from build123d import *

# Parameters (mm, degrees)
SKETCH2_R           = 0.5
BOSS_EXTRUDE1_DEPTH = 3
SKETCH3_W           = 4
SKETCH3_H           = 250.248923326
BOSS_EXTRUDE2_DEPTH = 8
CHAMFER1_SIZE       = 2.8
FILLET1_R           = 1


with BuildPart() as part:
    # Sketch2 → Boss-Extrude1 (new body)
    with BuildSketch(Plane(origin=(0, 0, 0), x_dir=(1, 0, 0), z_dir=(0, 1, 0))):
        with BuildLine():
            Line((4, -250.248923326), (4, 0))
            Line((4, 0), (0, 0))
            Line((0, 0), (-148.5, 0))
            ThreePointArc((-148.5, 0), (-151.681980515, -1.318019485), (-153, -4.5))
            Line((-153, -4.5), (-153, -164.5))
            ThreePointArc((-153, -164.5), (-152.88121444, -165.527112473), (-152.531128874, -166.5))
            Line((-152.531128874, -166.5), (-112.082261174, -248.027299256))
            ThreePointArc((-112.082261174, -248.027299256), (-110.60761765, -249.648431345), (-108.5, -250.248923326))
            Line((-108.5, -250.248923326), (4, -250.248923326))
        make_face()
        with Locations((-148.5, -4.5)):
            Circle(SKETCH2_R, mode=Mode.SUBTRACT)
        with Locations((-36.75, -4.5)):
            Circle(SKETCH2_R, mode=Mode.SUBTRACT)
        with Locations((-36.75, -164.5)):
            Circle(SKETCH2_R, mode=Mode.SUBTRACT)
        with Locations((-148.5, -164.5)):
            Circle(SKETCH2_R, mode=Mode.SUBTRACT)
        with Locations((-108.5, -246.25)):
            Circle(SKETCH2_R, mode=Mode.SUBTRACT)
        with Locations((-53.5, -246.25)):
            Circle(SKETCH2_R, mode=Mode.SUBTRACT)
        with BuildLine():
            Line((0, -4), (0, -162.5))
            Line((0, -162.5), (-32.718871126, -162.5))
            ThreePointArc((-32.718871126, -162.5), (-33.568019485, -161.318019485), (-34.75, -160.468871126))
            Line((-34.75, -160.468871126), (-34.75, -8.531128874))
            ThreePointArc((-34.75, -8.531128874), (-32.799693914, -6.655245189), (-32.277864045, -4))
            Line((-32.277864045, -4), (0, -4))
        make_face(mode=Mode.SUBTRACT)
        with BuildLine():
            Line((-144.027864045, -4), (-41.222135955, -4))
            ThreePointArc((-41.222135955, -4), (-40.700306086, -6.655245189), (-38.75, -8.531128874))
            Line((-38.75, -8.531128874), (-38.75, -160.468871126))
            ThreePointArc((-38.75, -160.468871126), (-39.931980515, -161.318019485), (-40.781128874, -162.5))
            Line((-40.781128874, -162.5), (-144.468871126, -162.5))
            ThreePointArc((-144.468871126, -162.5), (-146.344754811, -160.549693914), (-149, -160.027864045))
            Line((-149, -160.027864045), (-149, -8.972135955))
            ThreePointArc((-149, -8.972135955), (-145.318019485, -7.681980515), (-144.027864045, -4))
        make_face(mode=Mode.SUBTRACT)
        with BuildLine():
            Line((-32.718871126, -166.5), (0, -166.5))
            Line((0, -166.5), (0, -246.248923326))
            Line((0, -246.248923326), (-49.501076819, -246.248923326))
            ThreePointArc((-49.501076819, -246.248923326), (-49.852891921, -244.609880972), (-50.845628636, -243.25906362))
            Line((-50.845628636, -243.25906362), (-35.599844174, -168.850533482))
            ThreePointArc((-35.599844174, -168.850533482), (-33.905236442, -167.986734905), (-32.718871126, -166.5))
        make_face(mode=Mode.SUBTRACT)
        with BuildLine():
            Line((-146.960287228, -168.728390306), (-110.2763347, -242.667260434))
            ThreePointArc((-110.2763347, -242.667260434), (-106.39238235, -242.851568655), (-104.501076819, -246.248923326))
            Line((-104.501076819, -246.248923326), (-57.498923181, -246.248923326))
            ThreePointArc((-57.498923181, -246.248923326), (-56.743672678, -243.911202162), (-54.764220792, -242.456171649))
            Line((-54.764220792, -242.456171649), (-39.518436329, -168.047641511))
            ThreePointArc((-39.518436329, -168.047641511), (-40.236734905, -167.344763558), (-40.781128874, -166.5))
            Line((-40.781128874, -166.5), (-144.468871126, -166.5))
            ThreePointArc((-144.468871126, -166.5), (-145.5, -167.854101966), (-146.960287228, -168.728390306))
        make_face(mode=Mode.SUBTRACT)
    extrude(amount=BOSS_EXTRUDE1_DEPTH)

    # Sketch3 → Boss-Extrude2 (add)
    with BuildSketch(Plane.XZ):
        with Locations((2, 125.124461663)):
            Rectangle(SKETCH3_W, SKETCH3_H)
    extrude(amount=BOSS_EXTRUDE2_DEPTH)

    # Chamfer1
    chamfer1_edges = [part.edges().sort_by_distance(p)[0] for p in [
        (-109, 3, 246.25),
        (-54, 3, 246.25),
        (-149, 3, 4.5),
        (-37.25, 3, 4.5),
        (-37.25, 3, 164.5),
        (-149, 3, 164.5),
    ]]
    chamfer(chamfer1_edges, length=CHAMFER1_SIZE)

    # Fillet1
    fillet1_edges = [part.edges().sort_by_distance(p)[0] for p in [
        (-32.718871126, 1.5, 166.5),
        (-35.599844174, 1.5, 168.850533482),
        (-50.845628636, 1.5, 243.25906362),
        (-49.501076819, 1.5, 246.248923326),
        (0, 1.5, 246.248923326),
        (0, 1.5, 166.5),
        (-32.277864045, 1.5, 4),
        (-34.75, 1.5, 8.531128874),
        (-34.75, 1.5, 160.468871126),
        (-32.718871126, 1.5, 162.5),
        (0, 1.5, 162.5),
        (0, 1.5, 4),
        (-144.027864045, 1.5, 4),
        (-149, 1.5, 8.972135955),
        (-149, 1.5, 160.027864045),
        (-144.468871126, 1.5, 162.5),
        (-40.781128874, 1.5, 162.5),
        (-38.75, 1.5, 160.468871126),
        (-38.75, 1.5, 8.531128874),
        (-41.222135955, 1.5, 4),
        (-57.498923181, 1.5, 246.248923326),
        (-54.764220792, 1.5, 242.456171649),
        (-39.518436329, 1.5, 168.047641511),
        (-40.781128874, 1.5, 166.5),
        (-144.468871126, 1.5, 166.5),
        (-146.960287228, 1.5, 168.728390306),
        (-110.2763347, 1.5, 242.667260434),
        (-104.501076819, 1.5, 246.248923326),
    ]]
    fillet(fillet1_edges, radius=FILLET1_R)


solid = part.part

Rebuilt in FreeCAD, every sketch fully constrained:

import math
import FreeCAD as App
import Part
import Sketcher

V = App.Vector


def edges_at(feature, points):
    """Names of the edges that pass closest to the given points."""
    edges = feature.Shape.Edges
    near = lambda p: min(range(len(edges)), key=lambda i: edges[i].distToShape(Part.Vertex(*p))[0])
    return sorted({f"Edge{near(p) + 1}" for p in points})


def add_polygon(sketch, points):
    """Adds a closed chain of lines whose ends are joined by coincident constraints."""
    first, n = sketch.GeometryCount, len(points)
    for a, b in zip(points, points[1:] + points[:1]):
        sketch.addGeometry(Part.LineSegment(App.Vector(*a, 0), App.Vector(*b, 0)), False)
    for i in range(n):
        sketch.addConstraint(Sketcher.Constraint("Coincident", first + i, 2, first + (i + 1) % n, 1))

doc = App.newDocument("Part")
body = doc.addObject("PartDesign::Body", "Body")

sketch1 = doc.addObject("Sketcher::SketchObject", "Sketch")
body.addObject(sketch1)
sketch1.AttachmentSupport = (doc.XZ_Plane, [""])
sketch1.MapMode = "FlatFace"
sketch1.addGeometry([
    Part.LineSegment(V(4, 250.248923, 0), V(4, 0, 0)),
    Part.LineSegment(V(4, 0, 0), V(-148.5, 0, 0)),
    Part.ArcOfCircle(Part.Circle(V(-148.5, 4.5, 0), V(0, 0, 1), 4.5), math.radians(-180), math.radians(-90)),
    Part.LineSegment(V(-153, 4.5, 0), V(-153, 164.5, 0)),
    Part.ArcOfCircle(Part.Circle(V(-148.5, 164.5, 0), V(0, 0, 1), 4.5), math.radians(153.6122), math.radians(180)),
    Part.LineSegment(V(-152.531129, 166.5, 0), V(-112.082261, 248.027299, 0)),
    Part.ArcOfCircle(Part.Circle(V(-108.5, 246.25, 0), V(0, 0, 1), 3.998923), math.radians(90), math.radians(153.6122)),
    Part.LineSegment(V(-108.5, 250.248923, 0), V(4, 250.248923, 0)),
    Part.Circle(V(-108.5, 246.25, 0), V(0, 0, 1), 0.5),
    Part.LineSegment(V(-110.276335, 242.66726, 0), V(-146.960287, 168.72839, 0)),
    Part.ArcOfCircle(Part.Circle(V(-148.5, 164.5, 0), V(0, 0, 1), 4.5), math.radians(26.3878), math.radians(69.99157)),
    Part.LineSegment(V(-144.468871, 166.5, 0), V(-40.781129, 166.5, 0)),
    Part.ArcOfCircle(Part.Circle(V(-36.75, 164.5, 0), V(0, 0, 1), 4.5), math.radians(127.967041), math.radians(153.6122)),
    Part.LineSegment(V(-39.518436, 168.047642, 0), V(-54.764221, 242.456172, 0)),
    Part.ArcOfCircle(Part.Circle(V(-53.5, 246.25, 0), V(0, 0, 1), 3.998923), math.radians(-179.984574), math.radians(-108.429666)),
    Part.LineSegment(V(-57.498923, 246.248923, 0), V(-104.501077, 246.248923, 0)),
    Part.ArcOfCircle(Part.Circle(V(-108.5, 246.25, 0), V(0, 0, 1), 3.998923), math.radians(-116.372374), math.radians(-0.015426)),
    Part.Circle(V(-148.5, 164.5, 0), V(0, 0, 1), 0.5),
    Part.Circle(V(-53.5, 246.25, 0), V(0, 0, 1), 0.5),
    Part.ArcOfCircle(Part.Circle(V(-36.75, 164.5, 0), V(0, 0, 1), 4.5), math.radians(26.3878), math.radians(75.191441)),
    Part.LineSegment(V(-32.718871, 166.5, 0), V(0, 166.5, 0)),
    Part.LineSegment(V(0, 166.5, 0), V(0, 246.248923, 0)),
    Part.LineSegment(V(0, 246.248923, 0), V(-49.501077, 246.248923, 0)),
    Part.ArcOfCircle(Part.Circle(V(-53.5, 246.25, 0), V(0, 0, 1), 3.998923), math.radians(-48.411852), math.radians(-0.015426)),
    Part.LineSegment(V(-50.845629, 243.259064, 0), V(-35.599844, 168.850533, 0)),
    Part.Circle(V(-36.75, 164.5, 0), V(0, 0, 1), 0.5),
    Part.ArcOfCircle(Part.Circle(V(-148.5, 4.5, 0), V(0, 0, 1), 4.5), math.radians(-6.37937), math.radians(96.37937)),
    Part.LineSegment(V(-144.027864, 4, 0), V(-41.222136, 4, 0)),
    Part.ArcOfCircle(Part.Circle(V(-36.75, 4.5, 0), V(0, 0, 1), 4.5), math.radians(116.3878), math.radians(186.37937)),
    Part.LineSegment(V(-38.75, 8.531129, 0), V(-38.75, 160.468871, 0)),
    Part.ArcOfCircle(Part.Circle(V(-36.75, 164.5, 0), V(0, 0, 1), 4.5), math.radians(-153.6122), math.radians(-116.3878)),
    Part.LineSegment(V(-40.781129, 162.5, 0), V(-144.468871, 162.5, 0)),
    Part.ArcOfCircle(Part.Circle(V(-148.5, 164.5, 0), V(0, 0, 1), 4.5), math.radians(-96.37937), math.radians(-26.3878)),
    Part.LineSegment(V(-149, 160.027864, 0), V(-149, 8.972136, 0)),
    Part.Circle(V(-148.5, 4.5, 0), V(0, 0, 1), 0.5),
    Part.LineSegment(V(-32.277864, 4, 0), V(0, 4, 0)),
    Part.LineSegment(V(0, 4, 0), V(0, 162.5, 0)),
    Part.LineSegment(V(0, 162.5, 0), V(-32.718871, 162.5, 0)),
    Part.ArcOfCircle(Part.Circle(V(-36.75, 164.5, 0), V(0, 0, 1), 4.5), math.radians(-63.6122), math.radians(-26.3878)),
    Part.LineSegment(V(-34.75, 160.468871, 0), V(-34.75, 8.531129, 0)),
    Part.ArcOfCircle(Part.Circle(V(-36.75, 4.5, 0), V(0, 0, 1), 4.5), math.radians(-6.37937), math.radians(63.6122)),
    Part.Circle(V(-36.75, 4.5, 0), V(0, 0, 1), 0.5),
], False)
sketch1.addConstraint([
    Sketcher.Constraint("Coincident", 0, 2, 1, 1),
    Sketcher.Constraint("Tangent", 1, 2, 2, 2),
    Sketcher.Constraint("Tangent", 2, 1, 3, 1),
    Sketcher.Constraint("Tangent", 3, 2, 4, 2),
    Sketcher.Constraint("Tangent", 4, 1, 5, 1),
    Sketcher.Constraint("Tangent", 5, 2, 6, 2),
    Sketcher.Constraint("Tangent", 6, 1, 7, 1),
    Sketcher.Constraint("Coincident", 7, 2, 0, 1),
    Sketcher.Constraint("Coincident", 9, 2, 10, 2),
    Sketcher.Constraint("Coincident", 10, 1, 11, 1),
    Sketcher.Constraint("Coincident", 11, 2, 12, 2),
    Sketcher.Constraint("Coincident", 12, 1, 13, 1),
    Sketcher.Constraint("Coincident", 13, 2, 14, 2),
    Sketcher.Constraint("Coincident", 14, 1, 15, 1),
    Sketcher.Constraint("Coincident", 15, 2, 16, 2),
    Sketcher.Constraint("Coincident", 16, 1, 9, 1),
    Sketcher.Constraint("Coincident", 19, 1, 20, 1),
    Sketcher.Constraint("Coincident", 20, 2, 21, 1),
    Sketcher.Constraint("Coincident", 21, 2, 22, 1),
    Sketcher.Constraint("Coincident", 22, 2, 23, 2),
    Sketcher.Constraint("Coincident", 23, 1, 24, 1),
    Sketcher.Constraint("Coincident", 24, 2, 19, 2),
    Sketcher.Constraint("Coincident", 26, 1, 27, 1),
    Sketcher.Constraint("Coincident", 27, 2, 28, 2),
    Sketcher.Constraint("Coincident", 28, 1, 29, 1),
    Sketcher.Constraint("Coincident", 29, 2, 30, 2),
    Sketcher.Constraint("Coincident", 30, 1, 31, 1),
    Sketcher.Constraint("Coincident", 31, 2, 32, 2),
    Sketcher.Constraint("Coincident", 32, 1, 33, 1),
    Sketcher.Constraint("Coincident", 33, 2, 26, 2),
    Sketcher.Constraint("Coincident", 35, 2, 36, 1),
    Sketcher.Constraint("Coincident", 36, 2, 37, 1),
    Sketcher.Constraint("Coincident", 37, 2, 38, 2),
    Sketcher.Constraint("Coincident", 38, 1, 39, 1),
    Sketcher.Constraint("Coincident", 39, 2, 40, 2),
    Sketcher.Constraint("Coincident", 40, 1, 35, 1),
    Sketcher.Constraint("Vertical", 0),
    Sketcher.Constraint("Horizontal", 1),
    Sketcher.Constraint("Vertical", 3),
    Sketcher.Constraint("Horizontal", 7),
    Sketcher.Constraint("Horizontal", 11),
    Sketcher.Constraint("Horizontal", 15),
    Sketcher.Constraint("Horizontal", 20),
    Sketcher.Constraint("Vertical", 21),
    Sketcher.Constraint("Horizontal", 22),
    Sketcher.Constraint("Horizontal", 27),
    Sketcher.Constraint("Vertical", 29),
    Sketcher.Constraint("Horizontal", 31),
    Sketcher.Constraint("Vertical", 33),
    Sketcher.Constraint("Horizontal", 35),
    Sketcher.Constraint("Vertical", 36),
    Sketcher.Constraint("Horizontal", 37),
    Sketcher.Constraint("Vertical", 39),
    Sketcher.Constraint("Coincident", 8, 3, 6, 3),
    Sketcher.Constraint("Coincident", 10, 3, 4, 3),
    Sketcher.Constraint("Coincident", 16, 3, 6, 3),
    Sketcher.Constraint("Coincident", 17, 3, 4, 3),
    Sketcher.Constraint("Coincident", 18, 3, 14, 3),
    Sketcher.Constraint("Coincident", 19, 3, 12, 3),
    Sketcher.Constraint("Coincident", 23, 3, 14, 3),
    Sketcher.Constraint("Coincident", 25, 3, 12, 3),
    Sketcher.Constraint("Coincident", 26, 3, 2, 3),
    Sketcher.Constraint("Coincident", 30, 3, 12, 3),
    Sketcher.Constraint("Coincident", 32, 3, 4, 3),
    Sketcher.Constraint("Coincident", 34, 3, 2, 3),
    Sketcher.Constraint("Coincident", 38, 3, 12, 3),
    Sketcher.Constraint("Coincident", 40, 3, 28, 3),
    Sketcher.Constraint("Coincident", 41, 3, 28, 3),
    Sketcher.Constraint("Equal", 2, 4),
    Sketcher.Constraint("Equal", 4, 10),
    Sketcher.Constraint("Equal", 10, 12),
    Sketcher.Constraint("Equal", 6, 14),
    Sketcher.Constraint("Equal", 14, 16),
    Sketcher.Constraint("Equal", 8, 17),
    Sketcher.Constraint("Equal", 17, 18),
    Sketcher.Constraint("Equal", 12, 19),
    Sketcher.Constraint("Equal", 16, 23),
    Sketcher.Constraint("Equal", 18, 25),
    Sketcher.Constraint("Equal", 19, 26),
    Sketcher.Constraint("Equal", 26, 28),
    Sketcher.Constraint("Equal", 28, 30),
    Sketcher.Constraint("Equal", 30, 32),
    Sketcher.Constraint("Equal", 25, 34),
    Sketcher.Constraint("Equal", 32, 38),
    Sketcher.Constraint("Equal", 38, 40),
    Sketcher.Constraint("Equal", 34, 41),
    Sketcher.Constraint("PointOnObject", 0, 2, -1),
    Sketcher.Constraint("PointOnObject", 20, 2, -2),
    Sketcher.Constraint("PointOnObject", 35, 2, -2),
    Sketcher.Constraint("Parallel", 5, 9),
    Sketcher.Constraint("Parallel", 13, 24),
    Sketcher.Constraint("Horizontal", 10, 3, 12, 3),
    Sketcher.Constraint("Horizontal", 8, 3, 14, 3),
    Sketcher.Constraint("Horizontal", 26, 3, 28, 3),
    Sketcher.Constraint("Horizontal", 4, 1, 10, 1),
    Sketcher.Constraint("Horizontal", 11, 2, 19, 1),
    Sketcher.Constraint("Horizontal", 15, 2, 21, 2),
    Sketcher.Constraint("Horizontal", 27, 2, 35, 2),
    Sketcher.Constraint("Horizontal", 31, 2, 36, 2),
    Sketcher.Constraint("Horizontal", 29, 2, 38, 1),
    Sketcher.Constraint("Horizontal", 28, 1, 39, 2),
    Sketcher.Constraint("Vertical", 11, 2, 30, 1),
    Sketcher.Constraint("Equal", 13, 24),
    Sketcher.Constraint("Diameter", 8, 1.0),
    Sketcher.Constraint("Radius", 2, 4.5),
    Sketcher.Constraint("DistanceY", 3, 1, 3, 2, 160.0),
    Sketcher.Constraint("DistanceX", 1, 2, 1, 1, 152.5),
    Sketcher.Constraint("DistanceX", 7, 1, 7, 2, 112.5),
    Sketcher.Constraint("DistanceY", 36, 1, 36, 2, 158.5),
    Sketcher.Constraint("DistanceX", -1, 1, 0, 2, 4.0),
    Sketcher.Constraint("DistanceY", -1, 1, 26, 1, 4.0),
    Sketcher.Constraint("DistanceX", 32, 1, -1, 1, 149.0),
    Sketcher.Constraint("DistanceX", 6, 3, 14, 3, 55.0),
    Sketcher.Constraint("DistanceY", 15, 2, 6, 1, 4.0),
    Sketcher.Constraint("DistanceX", 28, 1, 41, 3, 2.0),
    Sketcher.Constraint("DistanceY", -1, 1, 6, 3, 246.25),
    Sketcher.Constraint("DistanceX", 12, 3, -1, 1, 36.75),
    Sketcher.Constraint("Distance", 13, 75.95435),
    Sketcher.Constraint("DistanceY", -1, 1, 9, 2, 168.72839),
    Sketcher.Constraint("DistanceY", -1, 1, 12, 1, 168.047642),
])
pad1 = doc.addObject("PartDesign::Pad", "Pad")
body.addObject(pad1)
pad1.Profile = sketch1
pad1.Length = 3
pad1.Reversed = True

sketch2 = doc.addObject("Sketcher::SketchObject", "Sketch001")
body.addObject(sketch2)
sketch2.AttachmentSupport = (doc.XZ_Plane, [""])
sketch2.MapMode = "FlatFace"
add_polygon(sketch2, [(0, 250.248923), (0, 0), (4, 0), (4, 250.248923)])
sketch2.addConstraint([
    Sketcher.Constraint("Vertical", 0),
    Sketcher.Constraint("Horizontal", 1),
    Sketcher.Constraint("Vertical", 2),
    Sketcher.Constraint("Horizontal", 3),
    Sketcher.Constraint("Coincident", 0, 2, -1, 1),
    Sketcher.Constraint("DistanceX", 1, 1, 1, 2, 4.0),
    Sketcher.Constraint("DistanceY", 0, 2, 0, 1, 250.248923),
])
pad2 = doc.addObject("PartDesign::Pad", "Pad001")
body.addObject(pad2)
pad2.Profile = sketch2
pad2.Length = 8
doc.recompute()

chamfer = doc.addObject("PartDesign::Chamfer", "Chamfer")
body.addObject(chamfer)
chamfer.Base = (pad2, edges_at(pad2, [
    (-109, 3, 246.25),
    (-54, 3, 246.25),
    (-149, 3, 4.5),
    (-37.25, 3, 4.5),
    (-37.25, 3, 164.5),
    (-149, 3, 164.5),
]))
chamfer.Size = 2.8
doc.recompute()

fillet = doc.addObject("PartDesign::Fillet", "Fillet")
body.addObject(fillet)
fillet.Base = (chamfer, edges_at(chamfer, [
    (-32.719, 1.5, 166.5),
    (-35.6, 1.5, 168.851),
    (-50.846, 1.5, 243.259),
    (-49.501, 1.5, 246.249),
    (0, 1.5, 246.249),
    (0, 1.5, 166.5),
    (-32.278, 1.5, 4),
    (-34.75, 1.5, 8.531),
    (-34.75, 1.5, 160.469),
    (-32.719, 1.5, 162.5),
    (0, 1.5, 162.5),
    (0, 1.5, 4),
    (-144.028, 1.5, 4),
    (-149, 1.5, 8.972),
    (-149, 1.5, 160.028),
    (-144.469, 1.5, 162.5),
    (-40.781, 1.5, 162.5),
    (-38.75, 1.5, 160.469),
    (-38.75, 1.5, 8.531),
    (-41.222, 1.5, 4),
    (-57.499, 1.5, 246.249),
    (-54.764, 1.5, 242.456),
    (-39.518, 1.5, 168.048),
    (-40.781, 1.5, 166.5),
    (-144.469, 1.5, 166.5),
    (-146.96, 1.5, 168.728),
    (-110.276, 1.5, 242.667),
    (-104.501, 1.5, 246.249),
]))
fillet.Radius = 1

doc.recompute()
